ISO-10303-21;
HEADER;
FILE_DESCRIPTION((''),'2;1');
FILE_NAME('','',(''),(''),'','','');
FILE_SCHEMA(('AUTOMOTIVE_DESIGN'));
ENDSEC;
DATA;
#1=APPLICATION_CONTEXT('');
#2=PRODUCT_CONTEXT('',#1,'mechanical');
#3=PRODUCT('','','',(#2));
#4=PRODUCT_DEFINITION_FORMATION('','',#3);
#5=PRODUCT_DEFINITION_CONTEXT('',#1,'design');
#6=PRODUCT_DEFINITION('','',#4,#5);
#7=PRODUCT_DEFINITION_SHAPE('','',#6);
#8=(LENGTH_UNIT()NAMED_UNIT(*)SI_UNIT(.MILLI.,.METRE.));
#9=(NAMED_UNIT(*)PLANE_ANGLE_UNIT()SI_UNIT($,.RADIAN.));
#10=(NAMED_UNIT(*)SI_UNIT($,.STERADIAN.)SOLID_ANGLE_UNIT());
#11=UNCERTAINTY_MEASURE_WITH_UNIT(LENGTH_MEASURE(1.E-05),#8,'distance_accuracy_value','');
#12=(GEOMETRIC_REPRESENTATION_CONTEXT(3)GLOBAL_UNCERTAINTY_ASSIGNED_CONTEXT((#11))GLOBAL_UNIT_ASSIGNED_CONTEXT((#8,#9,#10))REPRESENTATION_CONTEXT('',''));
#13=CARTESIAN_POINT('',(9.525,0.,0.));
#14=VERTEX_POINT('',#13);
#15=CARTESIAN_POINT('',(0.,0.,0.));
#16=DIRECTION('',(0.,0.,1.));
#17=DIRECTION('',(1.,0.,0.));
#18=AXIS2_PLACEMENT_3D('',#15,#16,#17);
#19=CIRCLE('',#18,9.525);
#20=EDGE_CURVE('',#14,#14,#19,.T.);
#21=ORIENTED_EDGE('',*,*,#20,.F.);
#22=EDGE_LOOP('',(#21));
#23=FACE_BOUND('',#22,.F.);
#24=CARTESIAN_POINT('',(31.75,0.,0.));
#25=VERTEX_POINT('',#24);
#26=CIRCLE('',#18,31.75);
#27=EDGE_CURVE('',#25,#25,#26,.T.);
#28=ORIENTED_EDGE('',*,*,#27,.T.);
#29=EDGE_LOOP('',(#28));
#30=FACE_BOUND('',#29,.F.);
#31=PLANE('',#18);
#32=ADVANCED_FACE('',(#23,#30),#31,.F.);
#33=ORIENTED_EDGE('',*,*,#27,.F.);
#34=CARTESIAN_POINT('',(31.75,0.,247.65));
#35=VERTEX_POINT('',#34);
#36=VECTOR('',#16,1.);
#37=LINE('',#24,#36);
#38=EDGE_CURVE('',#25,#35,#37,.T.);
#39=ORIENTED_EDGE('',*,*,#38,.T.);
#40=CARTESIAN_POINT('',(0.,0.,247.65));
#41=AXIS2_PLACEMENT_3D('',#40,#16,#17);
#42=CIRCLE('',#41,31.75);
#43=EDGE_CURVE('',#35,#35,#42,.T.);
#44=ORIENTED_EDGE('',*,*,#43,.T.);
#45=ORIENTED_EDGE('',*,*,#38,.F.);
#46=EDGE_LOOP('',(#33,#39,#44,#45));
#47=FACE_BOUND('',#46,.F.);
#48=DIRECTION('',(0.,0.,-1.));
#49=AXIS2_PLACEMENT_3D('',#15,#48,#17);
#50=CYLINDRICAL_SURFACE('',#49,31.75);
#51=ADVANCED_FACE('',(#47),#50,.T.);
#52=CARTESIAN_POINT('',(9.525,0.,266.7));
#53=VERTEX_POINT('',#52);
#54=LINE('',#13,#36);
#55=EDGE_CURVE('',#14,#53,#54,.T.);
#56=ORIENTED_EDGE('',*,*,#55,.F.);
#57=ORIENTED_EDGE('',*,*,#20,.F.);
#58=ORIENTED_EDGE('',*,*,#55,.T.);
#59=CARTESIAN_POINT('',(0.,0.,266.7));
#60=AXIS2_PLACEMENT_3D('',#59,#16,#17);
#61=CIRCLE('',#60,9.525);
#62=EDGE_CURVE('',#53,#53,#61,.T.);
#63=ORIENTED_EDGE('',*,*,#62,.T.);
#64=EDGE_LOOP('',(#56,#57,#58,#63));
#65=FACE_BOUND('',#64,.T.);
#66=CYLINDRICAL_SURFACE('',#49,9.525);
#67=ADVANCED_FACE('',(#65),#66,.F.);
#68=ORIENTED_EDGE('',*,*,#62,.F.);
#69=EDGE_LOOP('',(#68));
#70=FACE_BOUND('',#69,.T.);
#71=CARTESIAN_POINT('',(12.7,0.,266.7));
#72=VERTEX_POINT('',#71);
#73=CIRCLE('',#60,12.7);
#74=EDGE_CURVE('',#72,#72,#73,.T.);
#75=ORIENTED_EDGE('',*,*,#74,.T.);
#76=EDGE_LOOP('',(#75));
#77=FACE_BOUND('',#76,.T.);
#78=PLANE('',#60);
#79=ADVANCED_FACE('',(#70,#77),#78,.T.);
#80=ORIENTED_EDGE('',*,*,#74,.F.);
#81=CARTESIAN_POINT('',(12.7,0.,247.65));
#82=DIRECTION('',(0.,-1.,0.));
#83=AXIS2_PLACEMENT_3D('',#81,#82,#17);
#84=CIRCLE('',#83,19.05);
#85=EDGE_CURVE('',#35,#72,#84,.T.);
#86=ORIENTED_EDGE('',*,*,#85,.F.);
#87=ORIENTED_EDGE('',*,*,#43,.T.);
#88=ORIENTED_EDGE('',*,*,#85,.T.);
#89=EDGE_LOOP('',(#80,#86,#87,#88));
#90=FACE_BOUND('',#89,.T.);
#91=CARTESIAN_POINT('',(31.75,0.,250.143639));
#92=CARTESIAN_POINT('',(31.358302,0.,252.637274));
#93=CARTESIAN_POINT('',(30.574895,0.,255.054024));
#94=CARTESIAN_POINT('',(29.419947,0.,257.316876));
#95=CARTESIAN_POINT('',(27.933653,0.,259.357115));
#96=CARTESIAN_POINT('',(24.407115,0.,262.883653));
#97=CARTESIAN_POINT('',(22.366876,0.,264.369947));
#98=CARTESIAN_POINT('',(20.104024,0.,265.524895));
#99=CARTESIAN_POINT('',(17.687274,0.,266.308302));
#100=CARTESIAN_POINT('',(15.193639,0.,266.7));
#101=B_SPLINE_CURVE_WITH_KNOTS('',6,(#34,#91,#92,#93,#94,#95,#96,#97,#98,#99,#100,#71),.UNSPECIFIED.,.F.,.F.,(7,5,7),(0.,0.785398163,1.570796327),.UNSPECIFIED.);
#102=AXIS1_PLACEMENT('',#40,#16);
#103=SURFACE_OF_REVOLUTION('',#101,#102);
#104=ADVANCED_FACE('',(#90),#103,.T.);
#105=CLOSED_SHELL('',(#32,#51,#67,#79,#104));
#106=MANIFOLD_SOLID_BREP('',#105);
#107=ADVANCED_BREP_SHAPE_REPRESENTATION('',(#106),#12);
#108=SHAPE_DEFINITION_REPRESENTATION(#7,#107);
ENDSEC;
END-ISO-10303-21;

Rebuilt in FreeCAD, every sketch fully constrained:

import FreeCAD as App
import Part
import Sketcher

V = App.Vector
Q = App.Units.Quantity


def edges_at(feature, points):
    """Names of the edges that pass closest to the given points."""
    edges = feature.Shape.Edges
    near = lambda p: min(range(len(edges)), key=lambda i: edges[i].distToShape(Part.Vertex(*p))[0])
    return sorted({f"Edge{near(p) + 1}" for p in points})

doc = App.newDocument("Part")
body = doc.addObject("PartDesign::Body", "Body")

# Sketch on XY plane
sketch1 = doc.addObject("Sketcher::SketchObject", "Sketch")
body.addObject(sketch1)
sketch1.AttachmentSupport = (doc.XY_Plane, [""])
sketch1.MapMode = "FlatFace"
sketch1.addGeometry([
    Part.Circle(V(0, 0, 0), V(0, 0, 1), 31.75),
    Part.Circle(V(0, 0, 0), V(0, 0, 1), 9.525),
], False)
sketch1.addConstraint([
    Sketcher.Constraint("Coincident", 0, 3, -1, 1),
    Sketcher.Constraint("Coincident", 1, 3, -1, 1),
    Sketcher.Constraint("Diameter", 0, Q("2.5 in")),
    Sketcher.Constraint("Diameter", 1, Q("0.75 in")),
])
pad1 = doc.addObject("PartDesign::Pad", "Pad")
body.addObject(pad1)
pad1.Profile = sketch1
pad1.Length = Q("10.5 in")
doc.recompute()

fillet = doc.addObject("PartDesign::Fillet", "Fillet")
body.addObject(fillet)
fillet.Base = (pad1, edges_at(pad1, [(-31.75, 0, 266.7)]))
fillet.Radius = Q("0.75 in")

doc.recompute()
